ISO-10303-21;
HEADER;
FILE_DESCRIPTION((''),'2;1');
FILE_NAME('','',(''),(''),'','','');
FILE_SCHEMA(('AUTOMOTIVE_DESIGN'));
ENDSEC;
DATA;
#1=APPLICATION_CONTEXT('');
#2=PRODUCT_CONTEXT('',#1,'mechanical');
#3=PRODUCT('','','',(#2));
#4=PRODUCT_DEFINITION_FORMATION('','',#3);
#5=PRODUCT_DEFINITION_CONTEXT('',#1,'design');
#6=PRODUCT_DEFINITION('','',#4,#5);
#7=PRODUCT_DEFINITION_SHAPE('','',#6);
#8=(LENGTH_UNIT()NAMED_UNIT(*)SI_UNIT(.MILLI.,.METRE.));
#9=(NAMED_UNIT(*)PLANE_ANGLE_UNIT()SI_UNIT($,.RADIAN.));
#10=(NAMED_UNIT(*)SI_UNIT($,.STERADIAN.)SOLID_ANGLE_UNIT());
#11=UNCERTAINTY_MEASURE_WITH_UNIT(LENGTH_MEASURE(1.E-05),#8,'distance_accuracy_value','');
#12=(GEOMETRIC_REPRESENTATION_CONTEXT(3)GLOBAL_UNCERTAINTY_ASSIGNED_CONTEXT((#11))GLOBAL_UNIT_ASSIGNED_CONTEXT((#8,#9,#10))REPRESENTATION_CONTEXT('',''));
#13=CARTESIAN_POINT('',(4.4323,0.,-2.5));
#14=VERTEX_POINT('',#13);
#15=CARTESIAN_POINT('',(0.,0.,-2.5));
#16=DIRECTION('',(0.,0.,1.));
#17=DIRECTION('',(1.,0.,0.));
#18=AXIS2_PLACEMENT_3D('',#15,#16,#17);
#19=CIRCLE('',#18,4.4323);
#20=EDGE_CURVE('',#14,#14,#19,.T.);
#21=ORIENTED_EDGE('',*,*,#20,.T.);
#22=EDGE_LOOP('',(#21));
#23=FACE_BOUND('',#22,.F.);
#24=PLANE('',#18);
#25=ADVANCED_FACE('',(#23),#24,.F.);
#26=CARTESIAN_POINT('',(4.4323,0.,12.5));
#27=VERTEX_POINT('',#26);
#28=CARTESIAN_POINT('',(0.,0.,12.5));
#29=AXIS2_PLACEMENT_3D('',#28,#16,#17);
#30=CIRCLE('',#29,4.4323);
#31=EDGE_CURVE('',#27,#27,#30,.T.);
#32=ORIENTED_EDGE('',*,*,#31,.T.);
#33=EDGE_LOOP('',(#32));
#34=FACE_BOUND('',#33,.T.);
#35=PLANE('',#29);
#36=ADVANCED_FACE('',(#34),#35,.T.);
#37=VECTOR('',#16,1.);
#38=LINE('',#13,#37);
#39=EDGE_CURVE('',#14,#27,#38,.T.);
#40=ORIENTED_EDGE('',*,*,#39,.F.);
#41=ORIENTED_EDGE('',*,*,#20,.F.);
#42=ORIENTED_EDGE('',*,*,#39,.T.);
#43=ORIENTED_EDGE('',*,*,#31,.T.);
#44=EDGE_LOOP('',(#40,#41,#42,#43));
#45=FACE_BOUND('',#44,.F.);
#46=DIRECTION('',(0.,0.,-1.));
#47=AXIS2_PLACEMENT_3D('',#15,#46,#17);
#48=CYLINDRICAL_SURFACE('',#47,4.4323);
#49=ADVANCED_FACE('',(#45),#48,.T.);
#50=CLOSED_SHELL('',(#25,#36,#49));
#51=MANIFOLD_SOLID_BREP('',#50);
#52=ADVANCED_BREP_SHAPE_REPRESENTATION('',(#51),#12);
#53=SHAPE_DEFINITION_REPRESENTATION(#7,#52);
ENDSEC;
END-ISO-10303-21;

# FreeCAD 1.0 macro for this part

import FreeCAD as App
import Part
import Sketcher
from FreeCAD import Vector

doc = App.newDocument("Part")
body = doc.addObject("PartDesign::Body", "Body")

sketch1 = body.newObject("Sketcher::SketchObject", "Sketch")
sketch1.AttachmentSupport = (doc.getObject("XY_Plane"), [""])
sketch1.MapMode = "FlatFace"
sketch1.AttachmentOffset = App.Placement(Vector(0, 0, -2.5), App.Rotation())
sketch1.addGeometry(Part.Circle(Vector(0, 0, 0), Vector(0, 0, 1), 4.4), False)
sketch1.addConstraint([
    Sketcher.Constraint("Coincident", 0, 3, -1, 1),
    Sketcher.Constraint("Diameter", 0, 8.8646),
])
pad1 = body.newObject("PartDesign::Pad", "Pad")
pad1.Profile = sketch1
pad1.Length = 15

doc.recompute()
